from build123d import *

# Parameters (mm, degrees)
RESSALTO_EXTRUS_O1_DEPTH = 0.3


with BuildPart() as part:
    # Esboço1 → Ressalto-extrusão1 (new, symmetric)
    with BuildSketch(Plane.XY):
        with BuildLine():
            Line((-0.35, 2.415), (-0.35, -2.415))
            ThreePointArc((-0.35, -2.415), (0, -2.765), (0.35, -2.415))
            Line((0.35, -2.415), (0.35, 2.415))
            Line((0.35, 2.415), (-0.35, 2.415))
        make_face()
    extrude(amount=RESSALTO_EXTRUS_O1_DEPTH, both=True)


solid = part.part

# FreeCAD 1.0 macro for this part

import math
import FreeCAD as App
import Part
import Sketcher
Q = App.Units.Quantity

doc = App.newDocument("Part")
body = doc.addObject("PartDesign::Body", "Body")

# Sketch on XY plane
sketch1 = doc.addObject("Sketcher::SketchObject", "Sketch")
body.addObject(sketch1)
sketch1.AttachmentSupport = (doc.XY_Plane, [""])
sketch1.MapMode = "FlatFace"
sketch1.addGeometry(Part.LineSegment(App.Vector(-0.35, 2.42, 0), App.Vector(-0.35, -2.42, 0)), False)
sketch1.addGeometry(Part.ArcOfCircle(Part.Circle(App.Vector(0, -2.42, 0), App.Vector(0, 0, 1), 0.35), math.radians(180), math.radians(360)), False)
sketch1.addGeometry(Part.LineSegment(App.Vector(0.35, -2.42, 0), App.Vector(0.35, 2.42, 0)), False)
sketch1.addGeometry(Part.LineSegment(App.Vector(0.35, 2.42, 0), App.Vector(-0.35, 2.42, 0)), False)
sketch1.addConstraint(Sketcher.Constraint("Tangent", 0, 2, 1, 1))
sketch1.addConstraint(Sketcher.Constraint("Tangent", 1, 2, 2, 1))
sketch1.addConstraint(Sketcher.Constraint("Coincident", 2, 2, 3, 1))
sketch1.addConstraint(Sketcher.Constraint("Coincident", 3, 2, 0, 1))
sketch1.addConstraint(Sketcher.Constraint("Vertical", 0))
sketch1.addConstraint(Sketcher.Constraint("Vertical", 2))
sketch1.addConstraint(Sketcher.Constraint("Horizontal", 3))
sketch1.addConstraint(Sketcher.Constraint("Symmetric", 0, 2, 2, 2, -1, 1))
sketch1.addConstraint(Sketcher.Constraint("Radius", 1, Q("0.35 mm")))
sketch1.addConstraint(Sketcher.Constraint("DistanceY", 0, 2, 0, 1, Q("4.83 mm")))
pad1 = doc.addObject("PartDesign::Pad", "Pad")
body.addObject(pad1)
pad1.Profile = sketch1
pad1.Length = 0.6
pad1.Midplane = True

doc.recompute()
